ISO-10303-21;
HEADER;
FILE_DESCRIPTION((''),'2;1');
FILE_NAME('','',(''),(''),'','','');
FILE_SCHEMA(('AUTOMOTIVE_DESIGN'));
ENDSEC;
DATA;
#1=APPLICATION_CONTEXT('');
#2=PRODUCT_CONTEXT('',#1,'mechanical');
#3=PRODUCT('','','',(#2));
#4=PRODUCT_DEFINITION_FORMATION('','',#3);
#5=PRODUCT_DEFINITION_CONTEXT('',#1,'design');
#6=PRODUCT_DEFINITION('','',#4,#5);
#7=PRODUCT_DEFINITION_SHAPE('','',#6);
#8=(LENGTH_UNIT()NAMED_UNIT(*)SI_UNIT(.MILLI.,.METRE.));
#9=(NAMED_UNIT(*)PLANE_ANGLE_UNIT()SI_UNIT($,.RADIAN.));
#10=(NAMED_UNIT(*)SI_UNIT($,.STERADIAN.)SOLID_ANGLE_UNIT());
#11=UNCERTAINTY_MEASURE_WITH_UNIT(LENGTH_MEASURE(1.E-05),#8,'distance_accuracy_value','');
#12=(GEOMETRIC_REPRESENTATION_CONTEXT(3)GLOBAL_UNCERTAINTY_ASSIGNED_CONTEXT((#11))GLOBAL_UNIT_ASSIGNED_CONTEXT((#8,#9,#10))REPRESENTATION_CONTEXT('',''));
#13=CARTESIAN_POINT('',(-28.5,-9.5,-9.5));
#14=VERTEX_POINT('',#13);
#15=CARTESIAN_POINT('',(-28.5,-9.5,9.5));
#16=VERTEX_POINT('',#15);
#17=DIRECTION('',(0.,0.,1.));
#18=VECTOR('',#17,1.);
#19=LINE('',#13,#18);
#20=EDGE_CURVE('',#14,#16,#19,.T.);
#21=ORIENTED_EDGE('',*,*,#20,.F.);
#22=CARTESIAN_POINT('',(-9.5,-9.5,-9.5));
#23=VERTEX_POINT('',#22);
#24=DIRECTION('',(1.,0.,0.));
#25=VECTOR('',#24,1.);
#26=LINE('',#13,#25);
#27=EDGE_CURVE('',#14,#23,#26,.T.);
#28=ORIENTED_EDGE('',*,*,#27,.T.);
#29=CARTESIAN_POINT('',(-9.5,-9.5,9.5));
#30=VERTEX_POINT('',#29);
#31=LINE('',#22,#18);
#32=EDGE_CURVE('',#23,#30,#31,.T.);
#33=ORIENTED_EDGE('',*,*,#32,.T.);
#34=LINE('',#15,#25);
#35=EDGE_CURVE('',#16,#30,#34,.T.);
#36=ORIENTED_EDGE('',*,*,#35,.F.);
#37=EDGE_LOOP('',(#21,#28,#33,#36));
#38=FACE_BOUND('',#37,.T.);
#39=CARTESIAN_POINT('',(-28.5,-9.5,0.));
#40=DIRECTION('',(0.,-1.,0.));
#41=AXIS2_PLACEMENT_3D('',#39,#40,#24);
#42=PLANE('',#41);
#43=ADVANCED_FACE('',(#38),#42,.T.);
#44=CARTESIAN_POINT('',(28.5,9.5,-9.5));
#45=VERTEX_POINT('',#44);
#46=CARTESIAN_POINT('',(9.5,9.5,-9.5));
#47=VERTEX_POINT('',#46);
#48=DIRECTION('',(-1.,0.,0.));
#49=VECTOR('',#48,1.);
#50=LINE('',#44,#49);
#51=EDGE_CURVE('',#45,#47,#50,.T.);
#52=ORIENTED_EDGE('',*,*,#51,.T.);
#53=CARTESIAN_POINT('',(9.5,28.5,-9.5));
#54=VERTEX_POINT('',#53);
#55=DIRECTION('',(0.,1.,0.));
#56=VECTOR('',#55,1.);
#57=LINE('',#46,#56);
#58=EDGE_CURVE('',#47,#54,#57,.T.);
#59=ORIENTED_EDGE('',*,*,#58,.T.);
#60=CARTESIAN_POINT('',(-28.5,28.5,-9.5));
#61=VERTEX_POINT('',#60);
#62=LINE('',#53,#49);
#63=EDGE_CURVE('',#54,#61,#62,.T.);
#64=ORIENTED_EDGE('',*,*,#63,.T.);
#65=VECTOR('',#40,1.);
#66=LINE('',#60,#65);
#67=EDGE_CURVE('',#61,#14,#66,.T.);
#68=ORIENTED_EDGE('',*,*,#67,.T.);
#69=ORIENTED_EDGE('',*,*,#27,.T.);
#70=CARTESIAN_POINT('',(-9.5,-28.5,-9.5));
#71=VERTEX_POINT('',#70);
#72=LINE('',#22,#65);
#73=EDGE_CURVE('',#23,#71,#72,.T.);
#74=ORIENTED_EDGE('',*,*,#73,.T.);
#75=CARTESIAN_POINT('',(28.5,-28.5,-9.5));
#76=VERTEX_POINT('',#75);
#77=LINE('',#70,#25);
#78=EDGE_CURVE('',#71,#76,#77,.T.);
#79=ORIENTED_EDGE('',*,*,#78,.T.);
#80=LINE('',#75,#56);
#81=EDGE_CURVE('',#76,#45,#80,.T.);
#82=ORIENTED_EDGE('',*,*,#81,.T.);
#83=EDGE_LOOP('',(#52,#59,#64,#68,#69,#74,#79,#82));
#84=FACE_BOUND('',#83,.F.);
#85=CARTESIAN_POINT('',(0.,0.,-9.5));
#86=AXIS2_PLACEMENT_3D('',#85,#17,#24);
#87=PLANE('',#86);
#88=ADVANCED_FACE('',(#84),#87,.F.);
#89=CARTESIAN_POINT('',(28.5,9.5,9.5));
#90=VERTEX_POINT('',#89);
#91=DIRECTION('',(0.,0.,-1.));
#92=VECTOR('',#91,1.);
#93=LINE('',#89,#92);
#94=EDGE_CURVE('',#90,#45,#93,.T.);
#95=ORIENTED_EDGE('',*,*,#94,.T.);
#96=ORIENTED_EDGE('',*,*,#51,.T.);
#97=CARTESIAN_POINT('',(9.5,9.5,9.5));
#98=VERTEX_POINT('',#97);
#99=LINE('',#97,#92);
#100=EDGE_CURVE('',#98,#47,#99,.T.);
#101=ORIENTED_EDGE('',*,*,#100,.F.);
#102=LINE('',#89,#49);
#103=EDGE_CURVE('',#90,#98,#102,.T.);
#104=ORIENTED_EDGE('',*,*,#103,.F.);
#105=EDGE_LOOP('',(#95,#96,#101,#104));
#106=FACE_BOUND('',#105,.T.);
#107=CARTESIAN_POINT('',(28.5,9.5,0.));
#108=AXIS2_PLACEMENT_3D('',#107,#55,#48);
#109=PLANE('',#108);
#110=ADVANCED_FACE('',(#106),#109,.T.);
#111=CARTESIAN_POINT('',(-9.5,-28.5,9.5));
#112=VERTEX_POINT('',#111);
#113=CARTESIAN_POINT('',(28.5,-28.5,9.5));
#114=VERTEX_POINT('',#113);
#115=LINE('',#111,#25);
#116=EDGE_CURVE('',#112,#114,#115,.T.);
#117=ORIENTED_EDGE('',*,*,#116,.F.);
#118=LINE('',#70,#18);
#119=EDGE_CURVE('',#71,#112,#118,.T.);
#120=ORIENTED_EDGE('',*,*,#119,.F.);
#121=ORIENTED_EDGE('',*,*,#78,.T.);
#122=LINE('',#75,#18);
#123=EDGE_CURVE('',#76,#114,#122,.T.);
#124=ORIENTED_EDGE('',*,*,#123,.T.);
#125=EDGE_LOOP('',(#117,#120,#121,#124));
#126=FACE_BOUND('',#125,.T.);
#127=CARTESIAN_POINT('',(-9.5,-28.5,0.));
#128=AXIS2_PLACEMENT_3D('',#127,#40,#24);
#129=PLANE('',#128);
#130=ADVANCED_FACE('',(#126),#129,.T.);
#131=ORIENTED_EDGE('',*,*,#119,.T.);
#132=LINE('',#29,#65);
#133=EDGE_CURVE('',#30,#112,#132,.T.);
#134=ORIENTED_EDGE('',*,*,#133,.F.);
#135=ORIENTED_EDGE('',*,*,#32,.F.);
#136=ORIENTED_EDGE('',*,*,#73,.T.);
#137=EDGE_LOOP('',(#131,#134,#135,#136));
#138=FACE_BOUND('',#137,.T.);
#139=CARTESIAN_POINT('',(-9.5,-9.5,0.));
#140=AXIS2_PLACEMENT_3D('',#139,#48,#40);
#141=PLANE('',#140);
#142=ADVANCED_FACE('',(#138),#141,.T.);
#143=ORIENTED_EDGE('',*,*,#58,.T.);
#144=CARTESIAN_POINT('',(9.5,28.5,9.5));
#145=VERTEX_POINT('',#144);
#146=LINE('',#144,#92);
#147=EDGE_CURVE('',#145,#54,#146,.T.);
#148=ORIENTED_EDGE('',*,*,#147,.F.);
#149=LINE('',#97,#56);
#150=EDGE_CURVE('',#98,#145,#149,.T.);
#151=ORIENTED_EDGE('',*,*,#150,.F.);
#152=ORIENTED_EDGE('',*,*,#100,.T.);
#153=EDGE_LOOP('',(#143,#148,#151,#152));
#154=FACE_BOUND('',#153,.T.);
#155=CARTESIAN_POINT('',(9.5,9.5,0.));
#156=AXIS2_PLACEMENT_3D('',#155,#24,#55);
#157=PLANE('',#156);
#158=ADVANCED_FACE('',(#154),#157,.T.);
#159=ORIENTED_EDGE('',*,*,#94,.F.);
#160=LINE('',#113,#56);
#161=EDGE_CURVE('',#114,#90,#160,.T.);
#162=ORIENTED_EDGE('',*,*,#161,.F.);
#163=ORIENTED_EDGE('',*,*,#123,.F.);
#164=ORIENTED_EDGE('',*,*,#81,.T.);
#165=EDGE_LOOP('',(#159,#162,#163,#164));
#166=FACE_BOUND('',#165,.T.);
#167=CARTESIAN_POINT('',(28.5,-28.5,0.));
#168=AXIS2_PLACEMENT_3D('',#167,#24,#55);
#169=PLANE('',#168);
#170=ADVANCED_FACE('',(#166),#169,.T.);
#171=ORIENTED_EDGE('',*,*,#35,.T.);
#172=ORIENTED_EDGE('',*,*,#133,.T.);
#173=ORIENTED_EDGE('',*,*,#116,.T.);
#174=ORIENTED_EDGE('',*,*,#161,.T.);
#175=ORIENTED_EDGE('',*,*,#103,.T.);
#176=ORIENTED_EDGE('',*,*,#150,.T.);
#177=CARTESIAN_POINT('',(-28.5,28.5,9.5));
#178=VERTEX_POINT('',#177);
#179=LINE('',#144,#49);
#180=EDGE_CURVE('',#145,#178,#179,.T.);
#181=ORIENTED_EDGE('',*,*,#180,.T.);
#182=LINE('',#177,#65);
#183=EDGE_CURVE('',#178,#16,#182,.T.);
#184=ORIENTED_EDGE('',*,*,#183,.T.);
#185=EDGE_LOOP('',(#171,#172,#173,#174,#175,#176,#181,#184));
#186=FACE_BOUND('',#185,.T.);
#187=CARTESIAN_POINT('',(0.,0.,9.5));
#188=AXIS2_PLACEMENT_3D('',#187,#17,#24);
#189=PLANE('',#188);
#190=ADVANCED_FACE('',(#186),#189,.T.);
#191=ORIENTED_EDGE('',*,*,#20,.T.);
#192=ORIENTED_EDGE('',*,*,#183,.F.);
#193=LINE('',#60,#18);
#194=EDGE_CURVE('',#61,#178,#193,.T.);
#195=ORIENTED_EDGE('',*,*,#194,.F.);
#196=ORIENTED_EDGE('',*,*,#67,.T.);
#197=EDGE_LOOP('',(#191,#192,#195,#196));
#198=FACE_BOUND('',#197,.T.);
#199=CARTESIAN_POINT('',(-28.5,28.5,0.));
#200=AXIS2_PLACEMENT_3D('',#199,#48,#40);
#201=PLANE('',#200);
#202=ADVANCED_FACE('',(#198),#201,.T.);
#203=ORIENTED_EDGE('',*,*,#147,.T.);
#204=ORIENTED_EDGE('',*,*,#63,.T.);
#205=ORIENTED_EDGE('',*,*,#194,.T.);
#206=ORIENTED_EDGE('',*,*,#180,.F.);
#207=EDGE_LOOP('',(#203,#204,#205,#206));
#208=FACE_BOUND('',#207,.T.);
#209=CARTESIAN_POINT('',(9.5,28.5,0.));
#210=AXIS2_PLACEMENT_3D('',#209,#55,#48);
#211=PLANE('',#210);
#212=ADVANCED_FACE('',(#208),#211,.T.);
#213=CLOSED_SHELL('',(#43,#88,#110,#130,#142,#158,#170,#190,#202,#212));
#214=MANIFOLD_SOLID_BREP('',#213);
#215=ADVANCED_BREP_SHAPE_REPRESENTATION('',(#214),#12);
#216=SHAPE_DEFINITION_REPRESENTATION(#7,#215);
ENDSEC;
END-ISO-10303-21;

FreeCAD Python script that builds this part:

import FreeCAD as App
import Part
import Sketcher

V = App.Vector

doc = App.newDocument("Part")
body = doc.addObject("PartDesign::Body", "Body")

sketch1 = body.newObject("Sketcher::SketchObject", "Sketch")
sketch1.AttachmentSupport = (doc.getObject("XY_Plane"), [""])
sketch1.MapMode = "FlatFace"
sketch1.addGeometry([
    Part.LineSegment(V(9.5, 28.5, 0), V(-28.5, 28.5, 0)),
    Part.LineSegment(V(-28.5, 28.5, 0), V(-28.5, -9.5, 0)),
    Part.LineSegment(V(-28.5, -9.5, 0), V(-9.5, -9.5, 0)),
    Part.LineSegment(V(-9.5, -9.5, 0), V(-9.5, -28.5, 0)),
    Part.LineSegment(V(-9.5, -28.5, 0), V(28.5, -28.5, 0)),
    Part.LineSegment(V(28.5, -28.5, 0), V(28.5, 9.5, 0)),
    Part.LineSegment(V(28.5, 9.5, 0), V(9.5, 9.5, 0)),
    Part.LineSegment(V(9.5, 9.5, 0), V(9.5, 28.5, 0)),
], False)
sketch1.addConstraint([
    Sketcher.Constraint("Coincident", 0, 2, 1, 1),
    Sketcher.Constraint("Coincident", 1, 2, 2, 1),
    Sketcher.Constraint("Coincident", 2, 2, 3, 1),
    Sketcher.Constraint("Coincident", 3, 2, 4, 1),
    Sketcher.Constraint("Coincident", 4, 2, 5, 1),
    Sketcher.Constraint("Coincident", 5, 2, 6, 1),
    Sketcher.Constraint("Coincident", 6, 2, 7, 1),
    Sketcher.Constraint("Coincident", 7, 2, 0, 1),
    Sketcher.Constraint("Horizontal", 0),
    Sketcher.Constraint("Vertical", 1),
    Sketcher.Constraint("Horizontal", 2),
    Sketcher.Constraint("Vertical", 3),
    Sketcher.Constraint("Horizontal", 4),
    Sketcher.Constraint("Vertical", 5),
    Sketcher.Constraint("Horizontal", 6),
    Sketcher.Constraint("Vertical", 7),
    Sketcher.Constraint("Symmetric", 0, 2, 4, 2, -1, 1),
    Sketcher.Constraint("Symmetric", 2, 2, 6, 2, -1, 1),
    Sketcher.Constraint("Equal", 4, 1),
    Sketcher.Constraint("Equal", 6, 3),
    Sketcher.Constraint("DistanceX", 0, 2, 0, 1, 38.0),
    Sketcher.Constraint("DistanceX", 2, 1, 2, 2, 19.0),
])
pad1 = body.newObject("PartDesign::Pad", "Pad")
pad1.Profile = sketch1
pad1.Length = 19
pad1.Midplane = True

doc.recompute()
